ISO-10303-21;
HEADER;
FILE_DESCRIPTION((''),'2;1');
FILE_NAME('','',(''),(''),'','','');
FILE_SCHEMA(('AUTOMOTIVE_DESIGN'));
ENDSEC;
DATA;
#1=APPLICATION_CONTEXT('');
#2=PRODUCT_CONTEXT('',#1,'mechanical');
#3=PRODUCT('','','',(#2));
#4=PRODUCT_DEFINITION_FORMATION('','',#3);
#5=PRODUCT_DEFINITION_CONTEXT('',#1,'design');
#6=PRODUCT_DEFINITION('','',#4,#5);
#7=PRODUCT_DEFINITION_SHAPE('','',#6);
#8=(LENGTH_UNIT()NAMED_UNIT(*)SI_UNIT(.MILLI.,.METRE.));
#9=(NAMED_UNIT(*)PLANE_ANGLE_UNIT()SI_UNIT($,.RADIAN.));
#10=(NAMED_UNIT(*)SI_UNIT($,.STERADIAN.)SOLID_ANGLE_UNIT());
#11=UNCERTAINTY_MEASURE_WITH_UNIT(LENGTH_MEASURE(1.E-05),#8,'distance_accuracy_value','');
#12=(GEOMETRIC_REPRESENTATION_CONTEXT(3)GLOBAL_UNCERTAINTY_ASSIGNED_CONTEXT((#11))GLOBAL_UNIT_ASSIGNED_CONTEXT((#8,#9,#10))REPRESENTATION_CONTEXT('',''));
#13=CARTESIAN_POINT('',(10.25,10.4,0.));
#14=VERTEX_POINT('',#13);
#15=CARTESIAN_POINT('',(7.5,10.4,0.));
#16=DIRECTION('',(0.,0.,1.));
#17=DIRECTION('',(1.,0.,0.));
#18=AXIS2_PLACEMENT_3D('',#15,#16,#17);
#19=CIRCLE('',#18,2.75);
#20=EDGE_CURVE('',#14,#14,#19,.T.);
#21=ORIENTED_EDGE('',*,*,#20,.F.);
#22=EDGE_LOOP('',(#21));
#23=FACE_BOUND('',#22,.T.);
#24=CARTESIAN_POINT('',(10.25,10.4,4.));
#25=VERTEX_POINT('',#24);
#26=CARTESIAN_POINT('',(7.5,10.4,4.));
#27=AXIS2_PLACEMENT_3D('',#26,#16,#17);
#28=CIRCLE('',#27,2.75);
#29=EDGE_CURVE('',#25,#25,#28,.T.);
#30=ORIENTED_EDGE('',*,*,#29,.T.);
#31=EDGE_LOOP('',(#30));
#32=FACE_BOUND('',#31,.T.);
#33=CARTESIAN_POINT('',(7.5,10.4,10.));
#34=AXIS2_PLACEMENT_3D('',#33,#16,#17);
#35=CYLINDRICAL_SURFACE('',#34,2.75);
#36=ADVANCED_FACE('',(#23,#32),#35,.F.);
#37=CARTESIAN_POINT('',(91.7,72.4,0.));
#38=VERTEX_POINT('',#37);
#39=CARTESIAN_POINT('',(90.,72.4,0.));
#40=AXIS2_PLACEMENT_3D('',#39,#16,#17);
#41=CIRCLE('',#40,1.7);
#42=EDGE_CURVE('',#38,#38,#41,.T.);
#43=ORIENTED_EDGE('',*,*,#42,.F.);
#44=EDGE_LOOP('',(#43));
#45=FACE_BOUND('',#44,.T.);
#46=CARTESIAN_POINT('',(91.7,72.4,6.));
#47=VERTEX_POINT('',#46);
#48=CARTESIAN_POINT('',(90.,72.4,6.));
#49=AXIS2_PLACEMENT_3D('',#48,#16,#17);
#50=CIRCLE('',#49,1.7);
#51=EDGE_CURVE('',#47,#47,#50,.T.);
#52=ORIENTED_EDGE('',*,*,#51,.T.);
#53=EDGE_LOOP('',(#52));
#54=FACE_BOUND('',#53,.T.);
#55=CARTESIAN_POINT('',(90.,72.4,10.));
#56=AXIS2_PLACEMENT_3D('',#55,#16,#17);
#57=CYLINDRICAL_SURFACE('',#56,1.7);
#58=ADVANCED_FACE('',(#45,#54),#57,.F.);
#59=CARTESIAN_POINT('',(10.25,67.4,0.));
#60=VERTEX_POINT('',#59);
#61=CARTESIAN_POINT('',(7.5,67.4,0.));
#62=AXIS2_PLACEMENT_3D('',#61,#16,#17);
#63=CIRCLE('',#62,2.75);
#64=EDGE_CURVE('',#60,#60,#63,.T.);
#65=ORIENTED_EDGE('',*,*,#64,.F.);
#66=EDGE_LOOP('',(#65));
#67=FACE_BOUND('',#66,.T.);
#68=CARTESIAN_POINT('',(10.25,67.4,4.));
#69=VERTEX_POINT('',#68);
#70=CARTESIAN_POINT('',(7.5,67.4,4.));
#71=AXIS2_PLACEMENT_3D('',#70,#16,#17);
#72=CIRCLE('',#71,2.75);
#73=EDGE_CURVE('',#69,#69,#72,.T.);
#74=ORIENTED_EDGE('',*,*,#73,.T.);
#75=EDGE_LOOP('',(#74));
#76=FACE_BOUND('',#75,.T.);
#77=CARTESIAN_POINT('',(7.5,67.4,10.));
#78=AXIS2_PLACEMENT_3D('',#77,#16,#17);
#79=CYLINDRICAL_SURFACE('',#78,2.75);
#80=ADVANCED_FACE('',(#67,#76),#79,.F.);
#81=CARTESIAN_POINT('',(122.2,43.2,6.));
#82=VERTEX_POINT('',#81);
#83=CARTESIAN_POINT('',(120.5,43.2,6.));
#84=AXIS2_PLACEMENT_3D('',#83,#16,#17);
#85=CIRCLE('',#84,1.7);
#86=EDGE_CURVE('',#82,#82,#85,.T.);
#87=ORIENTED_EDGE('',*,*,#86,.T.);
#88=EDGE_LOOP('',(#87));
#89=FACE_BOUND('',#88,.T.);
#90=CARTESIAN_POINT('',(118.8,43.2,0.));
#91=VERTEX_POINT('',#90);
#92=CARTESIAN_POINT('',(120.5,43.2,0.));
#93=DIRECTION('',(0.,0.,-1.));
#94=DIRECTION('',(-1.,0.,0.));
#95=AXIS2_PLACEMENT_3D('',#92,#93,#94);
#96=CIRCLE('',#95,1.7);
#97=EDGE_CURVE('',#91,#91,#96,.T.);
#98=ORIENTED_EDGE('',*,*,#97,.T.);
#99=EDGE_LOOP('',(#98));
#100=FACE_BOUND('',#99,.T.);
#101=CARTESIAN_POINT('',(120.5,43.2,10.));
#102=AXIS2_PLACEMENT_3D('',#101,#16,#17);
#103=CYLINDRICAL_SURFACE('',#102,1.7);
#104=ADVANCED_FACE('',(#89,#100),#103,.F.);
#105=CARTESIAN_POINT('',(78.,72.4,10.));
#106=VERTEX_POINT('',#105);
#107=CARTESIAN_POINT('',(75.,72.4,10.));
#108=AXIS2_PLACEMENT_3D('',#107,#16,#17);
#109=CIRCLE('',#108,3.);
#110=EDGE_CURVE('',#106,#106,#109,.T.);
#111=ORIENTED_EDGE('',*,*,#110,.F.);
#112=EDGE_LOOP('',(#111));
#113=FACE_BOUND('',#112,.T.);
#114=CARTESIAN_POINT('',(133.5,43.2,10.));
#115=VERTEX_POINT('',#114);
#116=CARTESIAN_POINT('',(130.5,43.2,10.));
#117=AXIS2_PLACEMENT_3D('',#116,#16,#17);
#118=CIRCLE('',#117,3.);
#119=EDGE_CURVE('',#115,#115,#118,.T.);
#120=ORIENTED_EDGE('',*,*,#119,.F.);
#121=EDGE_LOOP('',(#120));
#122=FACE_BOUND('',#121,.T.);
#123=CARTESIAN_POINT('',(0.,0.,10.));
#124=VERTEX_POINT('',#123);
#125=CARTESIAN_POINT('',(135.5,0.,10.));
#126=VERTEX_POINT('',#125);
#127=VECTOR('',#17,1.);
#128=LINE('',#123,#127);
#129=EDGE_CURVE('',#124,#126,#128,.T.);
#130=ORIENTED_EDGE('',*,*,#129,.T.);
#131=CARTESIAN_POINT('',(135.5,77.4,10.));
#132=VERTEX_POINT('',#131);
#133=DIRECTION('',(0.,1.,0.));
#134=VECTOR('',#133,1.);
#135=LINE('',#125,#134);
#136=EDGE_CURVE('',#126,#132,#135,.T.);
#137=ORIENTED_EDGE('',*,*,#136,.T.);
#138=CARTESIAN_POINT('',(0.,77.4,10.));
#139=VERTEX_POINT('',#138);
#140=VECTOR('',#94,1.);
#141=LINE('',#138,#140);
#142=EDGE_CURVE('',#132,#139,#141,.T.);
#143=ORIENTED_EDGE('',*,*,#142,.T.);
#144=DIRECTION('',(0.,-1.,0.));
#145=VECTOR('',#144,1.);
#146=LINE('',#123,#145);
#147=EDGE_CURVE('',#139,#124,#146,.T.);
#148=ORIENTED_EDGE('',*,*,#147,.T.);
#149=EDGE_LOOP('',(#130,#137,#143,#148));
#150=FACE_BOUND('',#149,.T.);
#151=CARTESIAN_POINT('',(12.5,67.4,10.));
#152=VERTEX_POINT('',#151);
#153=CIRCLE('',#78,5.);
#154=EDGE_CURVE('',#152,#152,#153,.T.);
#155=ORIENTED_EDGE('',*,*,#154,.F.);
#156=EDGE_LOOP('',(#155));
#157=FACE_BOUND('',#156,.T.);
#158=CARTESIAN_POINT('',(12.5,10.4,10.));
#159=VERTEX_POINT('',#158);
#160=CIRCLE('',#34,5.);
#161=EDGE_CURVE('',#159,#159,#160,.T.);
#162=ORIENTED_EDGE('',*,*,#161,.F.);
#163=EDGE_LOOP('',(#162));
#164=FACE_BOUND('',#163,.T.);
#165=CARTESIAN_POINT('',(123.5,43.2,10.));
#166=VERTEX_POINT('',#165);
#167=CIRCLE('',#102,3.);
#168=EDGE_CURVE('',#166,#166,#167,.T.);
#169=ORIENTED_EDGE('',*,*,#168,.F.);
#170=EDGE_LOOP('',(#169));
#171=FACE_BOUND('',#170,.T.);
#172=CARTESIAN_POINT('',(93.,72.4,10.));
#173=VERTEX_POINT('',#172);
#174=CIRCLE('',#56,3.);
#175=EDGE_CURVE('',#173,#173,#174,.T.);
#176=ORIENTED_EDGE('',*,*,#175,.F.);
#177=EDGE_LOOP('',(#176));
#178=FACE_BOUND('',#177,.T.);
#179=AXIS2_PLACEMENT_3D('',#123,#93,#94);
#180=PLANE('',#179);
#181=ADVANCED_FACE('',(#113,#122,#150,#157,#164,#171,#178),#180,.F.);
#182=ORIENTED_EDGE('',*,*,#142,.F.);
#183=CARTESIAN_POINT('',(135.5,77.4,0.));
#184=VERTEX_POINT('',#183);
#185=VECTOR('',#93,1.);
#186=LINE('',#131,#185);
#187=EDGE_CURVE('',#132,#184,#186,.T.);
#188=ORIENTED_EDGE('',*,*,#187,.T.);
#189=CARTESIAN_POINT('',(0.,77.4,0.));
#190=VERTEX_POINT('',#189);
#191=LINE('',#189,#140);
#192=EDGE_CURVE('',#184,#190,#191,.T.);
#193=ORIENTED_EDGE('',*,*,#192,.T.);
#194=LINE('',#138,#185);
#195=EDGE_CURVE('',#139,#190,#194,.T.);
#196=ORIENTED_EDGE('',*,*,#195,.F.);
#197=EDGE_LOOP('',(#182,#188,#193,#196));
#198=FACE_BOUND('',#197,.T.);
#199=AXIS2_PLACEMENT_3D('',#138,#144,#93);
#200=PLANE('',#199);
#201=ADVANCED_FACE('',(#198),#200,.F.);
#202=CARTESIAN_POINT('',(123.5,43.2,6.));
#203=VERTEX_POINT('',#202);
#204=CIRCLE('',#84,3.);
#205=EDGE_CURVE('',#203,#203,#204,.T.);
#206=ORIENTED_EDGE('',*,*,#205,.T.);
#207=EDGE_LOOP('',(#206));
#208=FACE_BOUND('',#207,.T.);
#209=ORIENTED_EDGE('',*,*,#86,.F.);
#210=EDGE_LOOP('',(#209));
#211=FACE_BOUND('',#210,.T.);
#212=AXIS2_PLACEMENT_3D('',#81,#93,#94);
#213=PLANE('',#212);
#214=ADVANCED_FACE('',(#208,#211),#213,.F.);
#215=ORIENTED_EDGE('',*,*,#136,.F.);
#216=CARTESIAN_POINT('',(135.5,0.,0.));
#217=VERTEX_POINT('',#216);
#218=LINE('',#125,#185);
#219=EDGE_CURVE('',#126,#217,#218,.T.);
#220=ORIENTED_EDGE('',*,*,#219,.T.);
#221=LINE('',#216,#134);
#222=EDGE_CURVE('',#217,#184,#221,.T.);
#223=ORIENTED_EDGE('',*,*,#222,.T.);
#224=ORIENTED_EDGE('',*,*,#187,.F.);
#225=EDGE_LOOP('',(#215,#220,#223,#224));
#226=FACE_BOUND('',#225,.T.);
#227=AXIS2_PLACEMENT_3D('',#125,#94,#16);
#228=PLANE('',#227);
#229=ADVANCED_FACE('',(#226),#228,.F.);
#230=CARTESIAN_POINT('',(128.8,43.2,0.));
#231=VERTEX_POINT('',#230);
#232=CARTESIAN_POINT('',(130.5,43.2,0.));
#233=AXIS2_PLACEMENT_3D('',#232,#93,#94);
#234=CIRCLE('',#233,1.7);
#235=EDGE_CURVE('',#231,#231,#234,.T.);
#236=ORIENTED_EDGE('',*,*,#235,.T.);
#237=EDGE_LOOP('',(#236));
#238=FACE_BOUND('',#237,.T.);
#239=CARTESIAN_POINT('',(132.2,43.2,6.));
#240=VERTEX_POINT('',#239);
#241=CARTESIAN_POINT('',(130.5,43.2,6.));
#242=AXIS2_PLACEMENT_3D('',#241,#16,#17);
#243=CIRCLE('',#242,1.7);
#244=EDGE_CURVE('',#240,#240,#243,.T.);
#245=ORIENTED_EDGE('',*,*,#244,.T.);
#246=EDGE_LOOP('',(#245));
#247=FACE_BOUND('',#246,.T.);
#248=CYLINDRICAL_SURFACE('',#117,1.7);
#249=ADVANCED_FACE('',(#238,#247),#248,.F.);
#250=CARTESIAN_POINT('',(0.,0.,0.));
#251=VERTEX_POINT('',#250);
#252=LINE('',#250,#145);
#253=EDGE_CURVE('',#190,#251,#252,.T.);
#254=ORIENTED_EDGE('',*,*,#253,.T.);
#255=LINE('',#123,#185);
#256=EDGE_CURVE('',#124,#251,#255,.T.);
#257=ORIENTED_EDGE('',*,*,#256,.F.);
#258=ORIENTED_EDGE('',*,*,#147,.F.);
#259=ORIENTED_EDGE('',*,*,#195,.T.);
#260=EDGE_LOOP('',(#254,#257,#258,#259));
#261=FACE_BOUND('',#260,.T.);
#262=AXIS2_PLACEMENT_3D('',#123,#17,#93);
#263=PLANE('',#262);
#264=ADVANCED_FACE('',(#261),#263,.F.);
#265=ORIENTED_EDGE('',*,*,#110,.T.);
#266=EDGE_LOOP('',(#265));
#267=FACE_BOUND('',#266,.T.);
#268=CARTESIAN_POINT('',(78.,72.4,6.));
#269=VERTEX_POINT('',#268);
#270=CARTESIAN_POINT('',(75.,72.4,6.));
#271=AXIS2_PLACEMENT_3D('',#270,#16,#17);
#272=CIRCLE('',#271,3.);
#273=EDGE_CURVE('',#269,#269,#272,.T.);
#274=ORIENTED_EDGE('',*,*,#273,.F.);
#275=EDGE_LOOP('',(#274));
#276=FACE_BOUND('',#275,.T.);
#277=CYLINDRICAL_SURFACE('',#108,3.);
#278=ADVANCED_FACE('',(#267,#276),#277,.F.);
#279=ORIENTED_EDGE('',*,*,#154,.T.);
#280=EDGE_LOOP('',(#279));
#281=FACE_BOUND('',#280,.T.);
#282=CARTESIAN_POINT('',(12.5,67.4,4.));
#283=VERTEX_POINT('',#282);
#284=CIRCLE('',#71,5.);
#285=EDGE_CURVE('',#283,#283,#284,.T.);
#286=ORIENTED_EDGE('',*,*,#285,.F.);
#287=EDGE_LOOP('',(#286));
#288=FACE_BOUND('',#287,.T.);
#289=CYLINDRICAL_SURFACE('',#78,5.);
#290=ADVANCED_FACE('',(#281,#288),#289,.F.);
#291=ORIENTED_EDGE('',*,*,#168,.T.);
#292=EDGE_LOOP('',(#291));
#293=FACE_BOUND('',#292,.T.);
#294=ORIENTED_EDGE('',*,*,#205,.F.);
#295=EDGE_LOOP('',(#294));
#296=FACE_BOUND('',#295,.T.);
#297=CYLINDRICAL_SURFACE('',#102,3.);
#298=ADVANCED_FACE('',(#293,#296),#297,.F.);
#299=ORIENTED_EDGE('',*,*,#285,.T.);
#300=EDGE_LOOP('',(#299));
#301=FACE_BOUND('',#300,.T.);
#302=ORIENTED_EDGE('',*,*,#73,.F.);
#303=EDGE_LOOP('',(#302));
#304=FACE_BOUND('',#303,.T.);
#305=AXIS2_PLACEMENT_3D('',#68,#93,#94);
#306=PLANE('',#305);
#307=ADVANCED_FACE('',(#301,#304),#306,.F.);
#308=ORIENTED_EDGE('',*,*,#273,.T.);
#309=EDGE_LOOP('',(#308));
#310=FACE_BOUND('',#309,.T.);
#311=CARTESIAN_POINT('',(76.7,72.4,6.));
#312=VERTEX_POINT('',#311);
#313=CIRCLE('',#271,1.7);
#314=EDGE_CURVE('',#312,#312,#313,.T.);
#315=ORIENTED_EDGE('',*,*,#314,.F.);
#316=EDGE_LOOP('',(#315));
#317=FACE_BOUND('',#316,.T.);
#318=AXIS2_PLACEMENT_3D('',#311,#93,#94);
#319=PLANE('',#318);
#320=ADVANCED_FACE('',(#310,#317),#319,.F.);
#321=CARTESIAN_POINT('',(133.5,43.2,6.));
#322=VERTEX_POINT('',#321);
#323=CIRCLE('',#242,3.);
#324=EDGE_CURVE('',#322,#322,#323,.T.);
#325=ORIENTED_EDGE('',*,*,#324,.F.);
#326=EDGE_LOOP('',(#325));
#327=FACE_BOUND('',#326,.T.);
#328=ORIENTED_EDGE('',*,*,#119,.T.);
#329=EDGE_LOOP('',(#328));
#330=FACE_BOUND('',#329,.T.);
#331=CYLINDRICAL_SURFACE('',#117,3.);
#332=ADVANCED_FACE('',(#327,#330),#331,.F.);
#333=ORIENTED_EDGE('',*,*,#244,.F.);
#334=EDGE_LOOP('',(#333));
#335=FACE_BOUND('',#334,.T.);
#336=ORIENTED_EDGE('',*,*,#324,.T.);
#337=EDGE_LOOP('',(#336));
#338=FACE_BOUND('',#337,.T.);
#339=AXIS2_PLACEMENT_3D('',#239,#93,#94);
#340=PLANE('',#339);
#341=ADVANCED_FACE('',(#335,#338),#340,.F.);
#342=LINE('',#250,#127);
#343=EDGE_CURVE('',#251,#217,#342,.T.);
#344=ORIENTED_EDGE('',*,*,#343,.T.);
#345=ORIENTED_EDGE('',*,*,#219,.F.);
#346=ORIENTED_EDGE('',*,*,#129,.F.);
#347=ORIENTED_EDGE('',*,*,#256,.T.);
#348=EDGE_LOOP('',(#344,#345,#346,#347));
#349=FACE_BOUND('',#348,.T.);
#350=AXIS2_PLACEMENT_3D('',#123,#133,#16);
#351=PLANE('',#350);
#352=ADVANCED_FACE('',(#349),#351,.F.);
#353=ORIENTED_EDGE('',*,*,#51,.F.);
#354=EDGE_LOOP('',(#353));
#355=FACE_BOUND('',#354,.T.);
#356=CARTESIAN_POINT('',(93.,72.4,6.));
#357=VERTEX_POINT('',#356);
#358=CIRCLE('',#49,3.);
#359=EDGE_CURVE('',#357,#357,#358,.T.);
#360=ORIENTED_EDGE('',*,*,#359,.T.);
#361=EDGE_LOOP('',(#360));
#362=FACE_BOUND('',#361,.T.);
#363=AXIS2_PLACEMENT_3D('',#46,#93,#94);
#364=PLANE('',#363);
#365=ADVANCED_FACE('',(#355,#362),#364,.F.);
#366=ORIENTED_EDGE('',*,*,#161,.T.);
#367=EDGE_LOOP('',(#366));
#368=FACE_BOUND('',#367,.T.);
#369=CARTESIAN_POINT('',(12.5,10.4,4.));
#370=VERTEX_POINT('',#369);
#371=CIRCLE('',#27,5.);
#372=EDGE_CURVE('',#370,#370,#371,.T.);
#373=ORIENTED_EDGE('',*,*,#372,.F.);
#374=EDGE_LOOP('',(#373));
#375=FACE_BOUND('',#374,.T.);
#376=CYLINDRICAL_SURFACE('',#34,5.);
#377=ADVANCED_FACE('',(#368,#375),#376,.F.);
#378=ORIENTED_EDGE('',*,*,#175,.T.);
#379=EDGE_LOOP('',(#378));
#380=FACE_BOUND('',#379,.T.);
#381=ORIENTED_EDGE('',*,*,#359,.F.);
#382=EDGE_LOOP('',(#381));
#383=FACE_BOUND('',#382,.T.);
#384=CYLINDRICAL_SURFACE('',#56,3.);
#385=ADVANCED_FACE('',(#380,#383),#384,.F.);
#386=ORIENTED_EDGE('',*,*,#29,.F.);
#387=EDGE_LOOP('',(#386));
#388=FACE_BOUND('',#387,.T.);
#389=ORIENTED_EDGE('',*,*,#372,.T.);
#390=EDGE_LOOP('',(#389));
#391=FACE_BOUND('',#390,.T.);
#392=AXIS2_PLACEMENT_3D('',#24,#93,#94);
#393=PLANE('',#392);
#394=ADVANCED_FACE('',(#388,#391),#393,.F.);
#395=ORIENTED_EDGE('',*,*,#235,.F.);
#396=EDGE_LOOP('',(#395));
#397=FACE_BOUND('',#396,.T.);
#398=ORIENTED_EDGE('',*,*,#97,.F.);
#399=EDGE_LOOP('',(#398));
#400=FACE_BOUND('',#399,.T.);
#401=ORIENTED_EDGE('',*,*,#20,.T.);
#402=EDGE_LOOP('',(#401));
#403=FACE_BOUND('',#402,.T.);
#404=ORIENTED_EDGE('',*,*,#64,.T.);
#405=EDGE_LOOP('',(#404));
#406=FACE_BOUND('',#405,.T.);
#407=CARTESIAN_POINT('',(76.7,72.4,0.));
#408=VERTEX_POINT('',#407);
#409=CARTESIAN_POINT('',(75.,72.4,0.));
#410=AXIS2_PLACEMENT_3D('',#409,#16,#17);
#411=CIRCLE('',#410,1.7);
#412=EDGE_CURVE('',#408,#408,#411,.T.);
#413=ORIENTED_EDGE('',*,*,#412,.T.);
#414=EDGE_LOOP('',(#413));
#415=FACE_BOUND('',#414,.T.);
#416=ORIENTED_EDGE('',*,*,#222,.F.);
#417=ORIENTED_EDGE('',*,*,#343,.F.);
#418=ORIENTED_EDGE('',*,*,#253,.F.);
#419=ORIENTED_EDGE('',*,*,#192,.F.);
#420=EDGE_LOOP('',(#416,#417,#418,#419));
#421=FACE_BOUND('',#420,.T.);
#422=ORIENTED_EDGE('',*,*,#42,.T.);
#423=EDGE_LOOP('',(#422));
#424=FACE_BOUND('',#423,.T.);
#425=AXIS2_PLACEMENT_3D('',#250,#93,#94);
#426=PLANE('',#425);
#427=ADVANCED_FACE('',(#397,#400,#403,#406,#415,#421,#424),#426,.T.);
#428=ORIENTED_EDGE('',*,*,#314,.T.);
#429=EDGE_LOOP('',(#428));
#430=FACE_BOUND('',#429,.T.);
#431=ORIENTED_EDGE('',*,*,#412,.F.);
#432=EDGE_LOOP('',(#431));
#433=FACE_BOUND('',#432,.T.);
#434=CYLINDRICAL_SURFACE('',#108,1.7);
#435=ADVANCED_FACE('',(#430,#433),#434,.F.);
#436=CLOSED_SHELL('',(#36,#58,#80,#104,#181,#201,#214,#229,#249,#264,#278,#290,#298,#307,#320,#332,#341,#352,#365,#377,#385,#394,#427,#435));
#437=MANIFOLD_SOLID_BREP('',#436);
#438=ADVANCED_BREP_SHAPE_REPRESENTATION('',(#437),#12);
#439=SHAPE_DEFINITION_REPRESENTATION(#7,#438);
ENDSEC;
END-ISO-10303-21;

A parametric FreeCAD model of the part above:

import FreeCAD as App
import Part
import Sketcher

V = App.Vector
Q = App.Units.Quantity


def add_polygon(sketch, points):
    """Adds a closed chain of lines whose ends are joined by coincident constraints."""
    first, n = sketch.GeometryCount, len(points)
    for a, b in zip(points, points[1:] + points[:1]):
        sketch.addGeometry(Part.LineSegment(App.Vector(*a, 0), App.Vector(*b, 0)), False)
    for i in range(n):
        sketch.addConstraint(Sketcher.Constraint("Coincident", first + i, 2, first + (i + 1) % n, 1))

doc = App.newDocument("Part")
body = doc.addObject("PartDesign::Body", "Body")

# Sketch on XY plane
sketch1 = doc.addObject("Sketcher::SketchObject", "Sketch")
body.addObject(sketch1)
sketch1.AttachmentSupport = (doc.XY_Plane, [""])
sketch1.MapMode = "FlatFace"
add_polygon(sketch1, [(0, 77), (0, 0), (136, 0), (136, 77)])  # lines 0-3
sketch1.addConstraint(Sketcher.Constraint("Vertical", 0))
sketch1.addConstraint(Sketcher.Constraint("Horizontal", 1))
sketch1.addConstraint(Sketcher.Constraint("Vertical", 2))
sketch1.addConstraint(Sketcher.Constraint("Horizontal", 3))
sketch1.addConstraint(Sketcher.Constraint("Coincident", 0, 2, -1, 1))
sketch1.addConstraint(Sketcher.Constraint("DistanceX", 1, 1, 1, 2, Q("135.5 mm")))
sketch1.addConstraint(Sketcher.Constraint("DistanceY", 0, 2, 0, 1, Q("77.4 mm")))
pad1 = doc.addObject("PartDesign::Pad", "Pad")
body.addObject(pad1)
pad1.Profile = sketch1
pad1.Length = 10

# Sketch on XY plane
sketch2 = doc.addObject("Sketcher::SketchObject", "Sketch001")
body.addObject(sketch2)
sketch2.AttachmentSupport = (doc.XY_Plane, [""])
sketch2.MapMode = "FlatFace"
sketch2.AttachmentOffset = App.Placement(V(0, 0, 10), App.Rotation())
sketch2.addGeometry(Part.Circle(V(130.5, 43.2, 0), V(0, 0, 1), 1.7), False)
sketch2.addGeometry(Part.Circle(V(120.5, 43.2, 0), V(0, 0, 1), 1.7), False)
sketch2.addConstraint(Sketcher.Constraint("Equal", 0, 1))
sketch2.addConstraint(Sketcher.Constraint("Horizontal", 0, 3, 1, 3))
sketch2.addConstraint(Sketcher.Constraint("Diameter", 0, Q("3.4 mm")))
sketch2.addConstraint(Sketcher.Constraint("DistanceX", 1, 3, 0, 3, Q("10 mm")))
sketch2.addConstraint(Sketcher.Constraint("DistanceX", -1, 1, 0, 3, Q("130.5 mm")))
sketch2.addConstraint(Sketcher.Constraint("DistanceY", -1, 1, 0, 3, Q("43.2 mm")))
doc.recompute()
hole = doc.addObject("PartDesign::Hole", "Hole")
body.addObject(hole)
hole.Profile = sketch2
hole.ThreadType = "None"
hole.Diameter = 3.4
hole.DepthType = "ThroughAll"
hole.HoleCutType = "Counterbore"
hole.HoleCutDiameter = 6
hole.HoleCutDepth = 4

# Sketch on XY plane
sketch3 = doc.addObject("Sketcher::SketchObject", "Sketch002")
body.addObject(sketch3)
sketch3.AttachmentSupport = (doc.XY_Plane, [""])
sketch3.MapMode = "FlatFace"
sketch3.AttachmentOffset = App.Placement(V(0, 0, 10), App.Rotation())
sketch3.addGeometry(Part.Circle(V(130.5, 43.2, 0), V(0, 0, 1), 1.7), False)
sketch3.addGeometry(Part.Circle(V(75, 72.4, 0), V(0, 0, 1), 1.7), False)
sketch3.addGeometry(Part.Circle(V(90, 72.4, 0), V(0, 0, 1), 1.7), False)
sketch3.addGeometry(Part.Circle(V(120.5, 43.2, 0), V(0, 0, 1), 1.7), False)
sketch3.addConstraint(Sketcher.Constraint("Equal", 0, 1))
sketch3.addConstraint(Sketcher.Constraint("Equal", 1, 2))
sketch3.addConstraint(Sketcher.Constraint("Equal", 2, 3))
sketch3.addConstraint(Sketcher.Constraint("Horizontal", 1, 3, 2, 3))
sketch3.addConstraint(Sketcher.Constraint("Horizontal", 0, 3, 3, 3))
sketch3.addConstraint(Sketcher.Constraint("Diameter", 0, Q("3.4 mm")))
sketch3.addConstraint(Sketcher.Constraint("DistanceX", -1, 1, 1, 3, Q("75 mm")))
sketch3.addConstraint(Sketcher.Constraint("DistanceX", -1, 1, 2, 3, Q("90 mm")))
sketch3.addConstraint(Sketcher.Constraint("DistanceX", 3, 3, 0, 3, Q("10 mm")))
sketch3.addConstraint(Sketcher.Constraint("DistanceX", -1, 1, 0, 3, Q("130.5 mm")))
sketch3.addConstraint(Sketcher.Constraint("DistanceY", -1, 1, 0, 3, Q("43.2 mm")))
sketch3.addConstraint(Sketcher.Constraint("DistanceY", -1, 1, 1, 3, Q("72.4 mm")))
doc.recompute()
hole2 = doc.addObject("PartDesign::Hole", "Hole001")
body.addObject(hole2)
hole2.Profile = sketch3
hole2.ThreadType = "None"
hole2.Diameter = 3.4
hole2.DepthType = "ThroughAll"
hole2.HoleCutType = "Counterbore"
hole2.HoleCutDiameter = 6
hole2.HoleCutDepth = 4

# Sketch on XY plane
sketch4 = doc.addObject("Sketcher::SketchObject", "Sketch003")
body.addObject(sketch4)
sketch4.AttachmentSupport = (doc.XY_Plane, [""])
sketch4.MapMode = "FlatFace"
sketch4.AttachmentOffset = App.Placement(V(0, 0, 10), App.Rotation())
sketch4.addGeometry(Part.Circle(V(7.5, 67.4, 0), V(0, 0, 1), 2.8), False)
sketch4.addGeometry(Part.Circle(V(7.5, 10.4, 0), V(0, 0, 1), 2.8), False)
sketch4.addConstraint(Sketcher.Constraint("Equal", 0, 1))
sketch4.addConstraint(Sketcher.Constraint("Vertical", 0, 3, 1, 3))
sketch4.addConstraint(Sketcher.Constraint("Diameter", 0, Q("5.5 mm")))
sketch4.addConstraint(Sketcher.Constraint("DistanceY", 1, 3, 0, 3, Q("57 mm")))
sketch4.addConstraint(Sketcher.Constraint("DistanceX", -1, 1, 0, 3, Q("7.5 mm")))
sketch4.addConstraint(Sketcher.Constraint("DistanceY", -1, 1, 0, 3, Q("67.4 mm")))
doc.recompute()
hole3 = doc.addObject("PartDesign::Hole", "Hole002")
body.addObject(hole3)
hole3.Profile = sketch4
hole3.ThreadType = "None"
hole3.Diameter = 5.5
hole3.DepthType = "ThroughAll"
hole3.HoleCutType = "Counterbore"
hole3.HoleCutDiameter = 10
hole3.HoleCutDepth = 6

doc.recompute()
